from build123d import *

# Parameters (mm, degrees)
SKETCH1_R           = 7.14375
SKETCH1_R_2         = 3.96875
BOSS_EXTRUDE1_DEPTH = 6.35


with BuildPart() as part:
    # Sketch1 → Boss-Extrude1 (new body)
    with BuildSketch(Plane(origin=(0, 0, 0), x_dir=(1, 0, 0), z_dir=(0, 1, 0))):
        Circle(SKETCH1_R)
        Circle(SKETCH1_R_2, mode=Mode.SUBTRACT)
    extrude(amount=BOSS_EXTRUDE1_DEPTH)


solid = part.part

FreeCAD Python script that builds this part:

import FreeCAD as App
import Part
import Sketcher

V = App.Vector
Q = App.Units.Quantity

doc = App.newDocument("Part")
params = doc.addObject("Spreadsheet::Sheet", "Params")
for row, (alias, value) in enumerate([
    ("sketch1_diameter", "0.5625 in"),
    ("sketch1_diameter2", "0.3125 in"),
    ("pad1_length", "0.25 in"),
], start=1):
    params.set(f"A{row}", alias)
    params.set(f"B{row}", "=" + value)
    params.setAlias(f"B{row}", alias)

body = doc.addObject("PartDesign::Body", "Body")

# Sketch on XZ plane
sketch1 = body.newObject("Sketcher::SketchObject", "Sketch")
sketch1.AttachmentSupport = (doc.getObject("XZ_Plane"), [""])
sketch1.MapMode = "FlatFace"
sketch1.addGeometry([
    Part.Circle(V(0, 0, 0), V(0, 0, 1), 7.14375),
    Part.Circle(V(0, 0, 0), V(0, 0, 1), 3.96875),
], False)
sketch1.addConstraint([
    Sketcher.Constraint("Coincident", 0, 3, -1, 1),
    Sketcher.Constraint("Coincident", 1, 3, -1, 1),
    Sketcher.Constraint("Diameter", 0, Q("0.5625 in")),
    Sketcher.Constraint("Diameter", 1, Q("0.3125 in")),
])
sketch1.setExpression("Constraints[2]", "Params.sketch1_diameter")
sketch1.setExpression("Constraints[3]", "Params.sketch1_diameter2")
pad1 = body.newObject("PartDesign::Pad", "Pad")
pad1.Profile = sketch1
pad1.setExpression("Length", "Params.pad1_length")
pad1.Reversed = True

doc.recompute()
